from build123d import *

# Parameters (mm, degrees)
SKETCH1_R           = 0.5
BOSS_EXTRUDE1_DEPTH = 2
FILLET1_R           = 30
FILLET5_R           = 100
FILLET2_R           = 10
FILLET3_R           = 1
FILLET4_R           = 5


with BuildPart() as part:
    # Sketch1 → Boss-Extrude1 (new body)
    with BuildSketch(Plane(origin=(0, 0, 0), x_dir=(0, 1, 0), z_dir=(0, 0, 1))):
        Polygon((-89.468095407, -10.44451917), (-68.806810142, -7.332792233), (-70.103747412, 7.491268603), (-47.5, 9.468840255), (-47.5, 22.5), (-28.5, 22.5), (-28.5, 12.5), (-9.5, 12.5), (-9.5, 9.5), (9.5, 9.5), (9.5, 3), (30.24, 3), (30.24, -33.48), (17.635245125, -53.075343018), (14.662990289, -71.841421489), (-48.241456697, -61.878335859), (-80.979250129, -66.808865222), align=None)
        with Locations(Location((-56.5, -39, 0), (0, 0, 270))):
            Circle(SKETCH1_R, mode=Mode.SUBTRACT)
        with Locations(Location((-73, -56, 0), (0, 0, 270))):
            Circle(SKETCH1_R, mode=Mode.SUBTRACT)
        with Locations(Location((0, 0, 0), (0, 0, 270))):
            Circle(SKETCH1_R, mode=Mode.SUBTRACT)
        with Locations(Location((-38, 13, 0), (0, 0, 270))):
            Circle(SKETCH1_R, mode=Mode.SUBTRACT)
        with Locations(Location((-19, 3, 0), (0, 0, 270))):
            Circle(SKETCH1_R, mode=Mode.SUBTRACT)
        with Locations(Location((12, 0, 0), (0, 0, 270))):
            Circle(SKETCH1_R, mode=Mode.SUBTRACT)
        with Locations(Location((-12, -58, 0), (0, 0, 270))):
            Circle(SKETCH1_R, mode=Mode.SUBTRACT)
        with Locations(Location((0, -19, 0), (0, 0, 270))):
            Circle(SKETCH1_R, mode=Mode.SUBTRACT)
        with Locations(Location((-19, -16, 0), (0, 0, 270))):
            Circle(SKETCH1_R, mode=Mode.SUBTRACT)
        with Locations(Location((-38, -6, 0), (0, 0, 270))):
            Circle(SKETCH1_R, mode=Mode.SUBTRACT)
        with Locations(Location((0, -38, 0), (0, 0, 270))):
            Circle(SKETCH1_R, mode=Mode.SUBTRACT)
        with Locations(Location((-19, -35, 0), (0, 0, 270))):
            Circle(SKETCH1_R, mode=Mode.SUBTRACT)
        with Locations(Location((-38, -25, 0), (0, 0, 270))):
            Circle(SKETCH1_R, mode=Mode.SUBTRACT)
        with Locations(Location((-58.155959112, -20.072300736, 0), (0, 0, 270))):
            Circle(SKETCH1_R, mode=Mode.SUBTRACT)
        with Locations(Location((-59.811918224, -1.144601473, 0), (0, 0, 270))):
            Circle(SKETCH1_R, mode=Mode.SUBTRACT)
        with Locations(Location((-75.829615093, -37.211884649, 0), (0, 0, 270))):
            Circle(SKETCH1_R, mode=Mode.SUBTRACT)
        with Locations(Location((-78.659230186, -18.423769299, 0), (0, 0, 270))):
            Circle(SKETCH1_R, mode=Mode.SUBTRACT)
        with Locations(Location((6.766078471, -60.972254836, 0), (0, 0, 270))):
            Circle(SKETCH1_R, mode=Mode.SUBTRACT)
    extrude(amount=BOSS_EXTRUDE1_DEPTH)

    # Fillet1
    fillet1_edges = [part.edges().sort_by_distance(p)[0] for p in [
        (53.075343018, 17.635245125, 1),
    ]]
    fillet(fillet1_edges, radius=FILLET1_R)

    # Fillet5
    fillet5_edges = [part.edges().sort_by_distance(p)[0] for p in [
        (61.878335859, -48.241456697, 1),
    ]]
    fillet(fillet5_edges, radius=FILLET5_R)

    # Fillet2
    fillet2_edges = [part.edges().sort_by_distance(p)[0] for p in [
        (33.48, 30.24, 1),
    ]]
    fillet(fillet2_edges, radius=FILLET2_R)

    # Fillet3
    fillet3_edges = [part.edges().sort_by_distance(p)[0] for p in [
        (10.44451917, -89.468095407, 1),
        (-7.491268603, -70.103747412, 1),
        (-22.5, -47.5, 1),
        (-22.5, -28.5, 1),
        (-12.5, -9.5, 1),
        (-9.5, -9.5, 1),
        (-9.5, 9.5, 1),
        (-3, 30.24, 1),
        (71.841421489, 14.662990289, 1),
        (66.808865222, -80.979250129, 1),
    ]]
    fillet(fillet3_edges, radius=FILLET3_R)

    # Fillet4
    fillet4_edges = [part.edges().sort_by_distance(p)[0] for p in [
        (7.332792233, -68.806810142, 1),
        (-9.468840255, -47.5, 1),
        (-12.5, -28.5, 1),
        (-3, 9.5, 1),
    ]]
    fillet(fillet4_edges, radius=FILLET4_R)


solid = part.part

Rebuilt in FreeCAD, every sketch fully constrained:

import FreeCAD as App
import Part
import Sketcher

V = App.Vector
Q = App.Units.Quantity


def edges_at(feature, points):
    """Names of the edges that pass closest to the given points."""
    edges = feature.Shape.Edges
    near = lambda p: min(range(len(edges)), key=lambda i: edges[i].distToShape(Part.Vertex(*p))[0])
    return sorted({f"Edge{near(p) + 1}" for p in points})


def add_polygon(sketch, points):
    """Adds a closed chain of lines whose ends are joined by coincident constraints."""
    first, n = sketch.GeometryCount, len(points)
    for a, b in zip(points, points[1:] + points[:1]):
        sketch.addGeometry(Part.LineSegment(App.Vector(*a, 0), App.Vector(*b, 0)), False)
    for i in range(n):
        sketch.addConstraint(Sketcher.Constraint("Coincident", first + i, 2, first + (i + 1) % n, 1))

doc = App.newDocument("Part")
params = doc.addObject("Spreadsheet::Sheet", "Params")
for row, (alias, value) in enumerate([
    ("sketch1_diameter", "1 mm"),
    ("sketch1_width", "3 mm"),
    ("sketch1_width2", "10 mm"),
    ("sketch1_height", "19 mm"),
    ("sketch1_length", "57 mm"),
    ("pad1_length", "2 mm"),
    ("fillet_radius", "30 mm"),
    ("fillet2_radius", "100 mm"),
    ("fillet3_radius", "10 mm"),
    ("fillet4_radius", "1 mm"),
    ("fillet5_radius", "5 mm"),
], start=1):
    params.set(f"A{row}", alias)
    params.set(f"B{row}", "=" + value)
    params.setAlias(f"B{row}", alias)

body = doc.addObject("PartDesign::Body", "Body")

# Sketch on XY plane
sketch1 = doc.addObject("Sketcher::SketchObject", "Sketch")
body.addObject(sketch1)
sketch1.AttachmentSupport = (doc.XY_Plane, [""])
sketch1.MapMode = "FlatFace"
add_polygon(sketch1, [(7.3, -68.8), (10.4, -89.5), (66.8, -81), (61.9, -48.2), (71.8, 14.7), (53.1, 17.6), (33.5, 30.2), (-3, 30.2), (-3, 9.5), (-9.5, 9.5), (-9.5, -9.5), (-12.5, -9.5), (-12.5, -28.5), (-22.5, -28.5), (-22.5, -47.5), (-9.5, -47.5), (-7.5, -70.1)])  # lines 0-16
sketch1.addGeometry(Part.Circle(V(61, 6.8, 0), V(0, 0, 1), 0.5), False)  # 17
sketch1.addGeometry(Part.Circle(V(58, -12, 0), V(0, 0, 1), 0.5), False)  # 18
sketch1.addGeometry(Part.Circle(V(38, 0, 0), V(0, 0, 1), 0.5), False)  # 19
sketch1.addGeometry(Part.Circle(V(35, -19, 0), V(0, 0, 1), 0.5), False)  # 20
sketch1.addGeometry(Part.Circle(V(56, -73, 0), V(0, 0, 1), 0.5), False)  # 21
sketch1.addGeometry(Part.Circle(V(25, -38, 0), V(0, 0, 1), 0.5), False)  # 22
sketch1.addGeometry(Part.Circle(V(39, -56.5, 0), V(0, 0, 1), 0.5), False)  # 23
sketch1.addGeometry(Part.Circle(V(37.2, -75.8, 0), V(0, 0, 1), 0.5), False)  # 24
sketch1.addGeometry(Part.Circle(V(19, 0, 0), V(0, 0, 1), 0.5), False)  # 25
sketch1.addGeometry(Part.Circle(V(16, -19, 0), V(0, 0, 1), 0.5), False)  # 26
sketch1.addGeometry(Part.Circle(V(0, 12, 0), V(0, 0, 1), 0.5), False)  # 27
sketch1.addGeometry(Part.Circle(V(0, 0, 0), V(0, 0, 1), 0.5), False)  # 28
sketch1.addGeometry(Part.Circle(V(-3, -19, 0), V(0, 0, 1), 0.5), False)  # 29
sketch1.addGeometry(Part.Circle(V(6, -38, 0), V(0, 0, 1), 0.5), False)  # 30
sketch1.addGeometry(Part.Circle(V(20.1, -58.2, 0), V(0, 0, 1), 0.5), False)  # 31
sketch1.addGeometry(Part.Circle(V(18.4, -78.7, 0), V(0, 0, 1), 0.5), False)  # 32
sketch1.addGeometry(Part.Circle(V(-13, -38, 0), V(0, 0, 1), 0.5), False)  # 33
sketch1.addGeometry(Part.Circle(V(1.1, -59.8, 0), V(0, 0, 1), 0.5), False)  # 34
sketch1.addConstraint(Sketcher.Constraint("Horizontal", 6))
sketch1.addConstraint(Sketcher.Constraint("Vertical", 7))
sketch1.addConstraint(Sketcher.Constraint("Horizontal", 8))
sketch1.addConstraint(Sketcher.Constraint("Vertical", 9))
sketch1.addConstraint(Sketcher.Constraint("Horizontal", 10))
sketch1.addConstraint(Sketcher.Constraint("Vertical", 11))
sketch1.addConstraint(Sketcher.Constraint("Horizontal", 12))
sketch1.addConstraint(Sketcher.Constraint("Vertical", 13))
sketch1.addConstraint(Sketcher.Constraint("Horizontal", 14))
sketch1.addConstraint(Sketcher.Constraint("Coincident", 28, 3, -1, 1))
sketch1.addConstraint(Sketcher.Constraint("Equal", 17, 18))
sketch1.addConstraint(Sketcher.Constraint("Equal", 18, 19))
sketch1.addConstraint(Sketcher.Constraint("Equal", 19, 20))
sketch1.addConstraint(Sketcher.Constraint("Equal", 20, 21))
sketch1.addConstraint(Sketcher.Constraint("Equal", 21, 22))
sketch1.addConstraint(Sketcher.Constraint("Equal", 22, 23))
sketch1.addConstraint(Sketcher.Constraint("Equal", 23, 24))
sketch1.addConstraint(Sketcher.Constraint("Equal", 24, 25))
sketch1.addConstraint(Sketcher.Constraint("Equal", 25, 26))
sketch1.addConstraint(Sketcher.Constraint("Equal", 26, 27))
sketch1.addConstraint(Sketcher.Constraint("Equal", 27, 28))
sketch1.addConstraint(Sketcher.Constraint("Equal", 28, 29))
sketch1.addConstraint(Sketcher.Constraint("Equal", 29, 30))
sketch1.addConstraint(Sketcher.Constraint("Equal", 30, 31))
sketch1.addConstraint(Sketcher.Constraint("Equal", 31, 32))
sketch1.addConstraint(Sketcher.Constraint("Equal", 32, 33))
sketch1.addConstraint(Sketcher.Constraint("Equal", 33, 34))
sketch1.addConstraint(Sketcher.Constraint("PointOnObject", 19, 3, -1))
sketch1.addConstraint(Sketcher.Constraint("PointOnObject", 25, 3, -1))
sketch1.addConstraint(Sketcher.Constraint("PointOnObject", 27, 3, -2))
sketch1.addConstraint(Sketcher.Constraint("Perpendicular", 0, 1))
sketch1.addConstraint(Sketcher.Constraint("Perpendicular", 1, 2))
sketch1.addConstraint(Sketcher.Constraint("Perpendicular", 3, 4))
sketch1.addConstraint(Sketcher.Constraint("Perpendicular", 15, 16))
sketch1.addConstraint(Sketcher.Constraint("Horizontal", 20, 3, 26, 3))
sketch1.addConstraint(Sketcher.Constraint("Horizontal", 26, 3, 29, 3))
sketch1.addConstraint(Sketcher.Constraint("Horizontal", 22, 3, 30, 3))
sketch1.addConstraint(Sketcher.Constraint("Horizontal", 30, 3, 33, 3))
sketch1.addConstraint(Sketcher.Constraint("Vertical", 29, 3, 6, 2))
sketch1.addConstraint(Sketcher.Constraint("Equal", 9, 11))
sketch1.addConstraint(Sketcher.Constraint("Equal", 11, 13))
sketch1.addConstraint(Sketcher.Constraint("Diameter", 17, Q("1 mm")))
sketch1.addConstraint(Sketcher.Constraint("DistanceX", 10, 2, 10, 1, Q("3 mm")))
sketch1.addConstraint(Sketcher.Constraint("DistanceX", 12, 2, 12, 1, Q("10 mm")))
sketch1.addConstraint(Sketcher.Constraint("DistanceY", 9, 2, 9, 1, Q("19 mm")))
sketch1.addConstraint(Sketcher.Constraint("Angle", 3, Q("81 deg")))
sketch1.addConstraint(Sketcher.Constraint("Angle", 15, Q("-85 deg")))
sketch1.addConstraint(Sketcher.Constraint("Distance", 1, Q("57 mm")))
sketch1.addConstraint(Sketcher.Constraint("Distance", 4, Q("19 mm")))
sketch1.addConstraint(Sketcher.Constraint("DistanceX", 8, 2, 8, 1, Q("6.5 mm")))
sketch1.addConstraint(Sketcher.Constraint("DistanceX", -1, 1, 18, 3, Q("58 mm")))
sketch1.addConstraint(Sketcher.Constraint("DistanceY", 18, 3, -1, 1, Q("12 mm")))
sketch1.addConstraint(Sketcher.Constraint("DistanceX", -1, 1, 19, 3, Q("38 mm")))
sketch1.addConstraint(Sketcher.Constraint("DistanceX", -1, 1, 20, 3, Q("35 mm")))
sketch1.addConstraint(Sketcher.Constraint("DistanceY", 20, 3, -1, 1, Q("19 mm")))
sketch1.addConstraint(Sketcher.Constraint("DistanceX", -1, 1, 21, 3, Q("56 mm")))
sketch1.addConstraint(Sketcher.Constraint("DistanceY", 21, 3, -1, 1, Q("73 mm")))
sketch1.addConstraint(Sketcher.Constraint("DistanceX", -1, 1, 22, 3, Q("25 mm")))
sketch1.addConstraint(Sketcher.Constraint("DistanceY", 22, 3, -1, 1, Q("38 mm")))
sketch1.addConstraint(Sketcher.Constraint("DistanceX", -1, 1, 23, 3, Q("39 mm")))
sketch1.addConstraint(Sketcher.Constraint("DistanceX", -1, 1, 25, 3, Q("19 mm")))
sketch1.addConstraint(Sketcher.Constraint("DistanceX", -1, 1, 26, 3, Q("16 mm")))
sketch1.addConstraint(Sketcher.Constraint("DistanceY", -1, 1, 27, 3, Q("12 mm")))
sketch1.addConstraint(Sketcher.Constraint("DistanceX", 29, 3, -1, 1, Q("3 mm")))
sketch1.addConstraint(Sketcher.Constraint("DistanceX", -1, 1, 30, 3, Q("6 mm")))
sketch1.addConstraint(Sketcher.Constraint("DistanceX", 33, 3, -1, 1, Q("13 mm")))
sketch1.addConstraint(Sketcher.Constraint("DistanceX", 6, 2, 6, 1, Q("36.48 mm")))
sketch1.addConstraint(Sketcher.Constraint("DistanceY", 7, 2, 7, 1, Q("20.74 mm")))
sketch1.addConstraint(Sketcher.Constraint("DistanceY", 23, 3, -1, 1, Q("56.5 mm")))
sketch1.addConstraint(Sketcher.Constraint("DistanceY", -1, 1, 7, 2, Q("9.5 mm")))
sketch1.addConstraint(Sketcher.Constraint("Distance", 5, Q("23.299299 mm")))
sketch1.addConstraint(Sketcher.Constraint("DistanceX", 14, 1, 14, 2, Q("13.03116 mm")))
sketch1.addConstraint(Sketcher.Constraint("DistanceX", -1, 1, 31, 3, Q("20.072301 mm")))
sketch1.addConstraint(Sketcher.Constraint("DistanceX", -1, 1, 34, 3, Q("1.144601 mm")))
sketch1.addConstraint(Sketcher.Constraint("Distance", 3, Q("63.688559 mm")))
sketch1.addConstraint(Sketcher.Constraint("Distance", 15, Q("22.69009 mm")))
sketch1.addConstraint(Sketcher.Constraint("DistanceY", -1, 1, 17, 3, Q("6.766078 mm")))
sketch1.addConstraint(Sketcher.Constraint("DistanceY", 31, 3, -1, 1, Q("58.155959 mm")))
sketch1.addConstraint(Sketcher.Constraint("DistanceX", -1, 1, 32, 3, Q("18.423769 mm")))
sketch1.addConstraint(Sketcher.Constraint("DistanceY", 32, 3, -1, 1, Q("78.65923 mm")))
sketch1.addConstraint(Sketcher.Constraint("DistanceY", 34, 3, -1, 1, Q("59.811918 mm")))
sketch1.addConstraint(Sketcher.Constraint("DistanceX", -1, 1, 0, 2, Q("10.444519 mm")))
sketch1.addConstraint(Sketcher.Constraint("DistanceY", 1, 2, -1, 1, Q("80.97925 mm")))
sketch1.addConstraint(Sketcher.Constraint("DistanceX", -1, 1, 3, 2, Q("71.841421 mm")))
sketch1.addConstraint(Sketcher.Constraint("DistanceY", 0, 2, 24, 3, Q("13.63848 mm")))
sketch1.addConstraint(Sketcher.Constraint("DistanceX", 24, 3, 1, 2, Q("29.596981 mm")))
sketch1.addConstraint(Sketcher.Constraint("DistanceX", 4, 2, 17, 3, Q("7.896912 mm")))
sketch1.setExpression("Constraints[58]", "Params.sketch1_diameter")
sketch1.setExpression("Constraints[59]", "Params.sketch1_width")
sketch1.setExpression("Constraints[60]", "Params.sketch1_width2")
sketch1.setExpression("Constraints[61]", "Params.sketch1_height")
sketch1.setExpression("Constraints[64]", "Params.sketch1_length")
pad1 = doc.addObject("PartDesign::Pad", "Pad")
body.addObject(pad1)
pad1.Profile = sketch1
pad1.setExpression("Length", "Params.pad1_length")
doc.recompute()

fillet = doc.addObject("PartDesign::Fillet", "Fillet")
body.addObject(fillet)
fillet.Base = (pad1, edges_at(pad1, [(53.075, 17.635, 1)]))
fillet.setExpression("Radius", "Params.fillet_radius")
doc.recompute()

fillet2 = doc.addObject("PartDesign::Fillet", "Fillet001")
body.addObject(fillet2)
fillet2.Base = (fillet, edges_at(fillet, [(61.878, -48.241, 1)]))
fillet2.setExpression("Radius", "Params.fillet2_radius")
doc.recompute()

fillet3 = doc.addObject("PartDesign::Fillet", "Fillet002")
body.addObject(fillet3)
fillet3.Base = (fillet2, edges_at(fillet2, [(33.48, 30.24, 1)]))
fillet3.setExpression("Radius", "Params.fillet3_radius")
doc.recompute()

fillet4 = doc.addObject("PartDesign::Fillet", "Fillet003")
body.addObject(fillet4)
fillet4.Base = (fillet3, edges_at(fillet3, [
    (10.445, -89.468, 1),
    (-7.491, -70.104, 1),
    (-22.5, -47.5, 1),
    (-22.5, -28.5, 1),
    (-12.5, -9.5, 1),
    (-9.5, -9.5, 1),
    (-9.5, 9.5, 1),
    (-3, 30.24, 1),
    (71.841, 14.663, 1),
    (66.809, -80.979, 1),
]))
fillet4.setExpression("Radius", "Params.fillet4_radius")
doc.recompute()

fillet5 = doc.addObject("PartDesign::Fillet", "Fillet004")
body.addObject(fillet5)
fillet5.Base = (fillet4, edges_at(fillet4, [
    (7.333, -68.807, 1),
    (-9.469, -47.5, 1),
    (-12.5, -28.5, 1),
    (-3, 9.5, 1),
]))
fillet5.setExpression("Radius", "Params.fillet5_radius")

doc.recompute()
